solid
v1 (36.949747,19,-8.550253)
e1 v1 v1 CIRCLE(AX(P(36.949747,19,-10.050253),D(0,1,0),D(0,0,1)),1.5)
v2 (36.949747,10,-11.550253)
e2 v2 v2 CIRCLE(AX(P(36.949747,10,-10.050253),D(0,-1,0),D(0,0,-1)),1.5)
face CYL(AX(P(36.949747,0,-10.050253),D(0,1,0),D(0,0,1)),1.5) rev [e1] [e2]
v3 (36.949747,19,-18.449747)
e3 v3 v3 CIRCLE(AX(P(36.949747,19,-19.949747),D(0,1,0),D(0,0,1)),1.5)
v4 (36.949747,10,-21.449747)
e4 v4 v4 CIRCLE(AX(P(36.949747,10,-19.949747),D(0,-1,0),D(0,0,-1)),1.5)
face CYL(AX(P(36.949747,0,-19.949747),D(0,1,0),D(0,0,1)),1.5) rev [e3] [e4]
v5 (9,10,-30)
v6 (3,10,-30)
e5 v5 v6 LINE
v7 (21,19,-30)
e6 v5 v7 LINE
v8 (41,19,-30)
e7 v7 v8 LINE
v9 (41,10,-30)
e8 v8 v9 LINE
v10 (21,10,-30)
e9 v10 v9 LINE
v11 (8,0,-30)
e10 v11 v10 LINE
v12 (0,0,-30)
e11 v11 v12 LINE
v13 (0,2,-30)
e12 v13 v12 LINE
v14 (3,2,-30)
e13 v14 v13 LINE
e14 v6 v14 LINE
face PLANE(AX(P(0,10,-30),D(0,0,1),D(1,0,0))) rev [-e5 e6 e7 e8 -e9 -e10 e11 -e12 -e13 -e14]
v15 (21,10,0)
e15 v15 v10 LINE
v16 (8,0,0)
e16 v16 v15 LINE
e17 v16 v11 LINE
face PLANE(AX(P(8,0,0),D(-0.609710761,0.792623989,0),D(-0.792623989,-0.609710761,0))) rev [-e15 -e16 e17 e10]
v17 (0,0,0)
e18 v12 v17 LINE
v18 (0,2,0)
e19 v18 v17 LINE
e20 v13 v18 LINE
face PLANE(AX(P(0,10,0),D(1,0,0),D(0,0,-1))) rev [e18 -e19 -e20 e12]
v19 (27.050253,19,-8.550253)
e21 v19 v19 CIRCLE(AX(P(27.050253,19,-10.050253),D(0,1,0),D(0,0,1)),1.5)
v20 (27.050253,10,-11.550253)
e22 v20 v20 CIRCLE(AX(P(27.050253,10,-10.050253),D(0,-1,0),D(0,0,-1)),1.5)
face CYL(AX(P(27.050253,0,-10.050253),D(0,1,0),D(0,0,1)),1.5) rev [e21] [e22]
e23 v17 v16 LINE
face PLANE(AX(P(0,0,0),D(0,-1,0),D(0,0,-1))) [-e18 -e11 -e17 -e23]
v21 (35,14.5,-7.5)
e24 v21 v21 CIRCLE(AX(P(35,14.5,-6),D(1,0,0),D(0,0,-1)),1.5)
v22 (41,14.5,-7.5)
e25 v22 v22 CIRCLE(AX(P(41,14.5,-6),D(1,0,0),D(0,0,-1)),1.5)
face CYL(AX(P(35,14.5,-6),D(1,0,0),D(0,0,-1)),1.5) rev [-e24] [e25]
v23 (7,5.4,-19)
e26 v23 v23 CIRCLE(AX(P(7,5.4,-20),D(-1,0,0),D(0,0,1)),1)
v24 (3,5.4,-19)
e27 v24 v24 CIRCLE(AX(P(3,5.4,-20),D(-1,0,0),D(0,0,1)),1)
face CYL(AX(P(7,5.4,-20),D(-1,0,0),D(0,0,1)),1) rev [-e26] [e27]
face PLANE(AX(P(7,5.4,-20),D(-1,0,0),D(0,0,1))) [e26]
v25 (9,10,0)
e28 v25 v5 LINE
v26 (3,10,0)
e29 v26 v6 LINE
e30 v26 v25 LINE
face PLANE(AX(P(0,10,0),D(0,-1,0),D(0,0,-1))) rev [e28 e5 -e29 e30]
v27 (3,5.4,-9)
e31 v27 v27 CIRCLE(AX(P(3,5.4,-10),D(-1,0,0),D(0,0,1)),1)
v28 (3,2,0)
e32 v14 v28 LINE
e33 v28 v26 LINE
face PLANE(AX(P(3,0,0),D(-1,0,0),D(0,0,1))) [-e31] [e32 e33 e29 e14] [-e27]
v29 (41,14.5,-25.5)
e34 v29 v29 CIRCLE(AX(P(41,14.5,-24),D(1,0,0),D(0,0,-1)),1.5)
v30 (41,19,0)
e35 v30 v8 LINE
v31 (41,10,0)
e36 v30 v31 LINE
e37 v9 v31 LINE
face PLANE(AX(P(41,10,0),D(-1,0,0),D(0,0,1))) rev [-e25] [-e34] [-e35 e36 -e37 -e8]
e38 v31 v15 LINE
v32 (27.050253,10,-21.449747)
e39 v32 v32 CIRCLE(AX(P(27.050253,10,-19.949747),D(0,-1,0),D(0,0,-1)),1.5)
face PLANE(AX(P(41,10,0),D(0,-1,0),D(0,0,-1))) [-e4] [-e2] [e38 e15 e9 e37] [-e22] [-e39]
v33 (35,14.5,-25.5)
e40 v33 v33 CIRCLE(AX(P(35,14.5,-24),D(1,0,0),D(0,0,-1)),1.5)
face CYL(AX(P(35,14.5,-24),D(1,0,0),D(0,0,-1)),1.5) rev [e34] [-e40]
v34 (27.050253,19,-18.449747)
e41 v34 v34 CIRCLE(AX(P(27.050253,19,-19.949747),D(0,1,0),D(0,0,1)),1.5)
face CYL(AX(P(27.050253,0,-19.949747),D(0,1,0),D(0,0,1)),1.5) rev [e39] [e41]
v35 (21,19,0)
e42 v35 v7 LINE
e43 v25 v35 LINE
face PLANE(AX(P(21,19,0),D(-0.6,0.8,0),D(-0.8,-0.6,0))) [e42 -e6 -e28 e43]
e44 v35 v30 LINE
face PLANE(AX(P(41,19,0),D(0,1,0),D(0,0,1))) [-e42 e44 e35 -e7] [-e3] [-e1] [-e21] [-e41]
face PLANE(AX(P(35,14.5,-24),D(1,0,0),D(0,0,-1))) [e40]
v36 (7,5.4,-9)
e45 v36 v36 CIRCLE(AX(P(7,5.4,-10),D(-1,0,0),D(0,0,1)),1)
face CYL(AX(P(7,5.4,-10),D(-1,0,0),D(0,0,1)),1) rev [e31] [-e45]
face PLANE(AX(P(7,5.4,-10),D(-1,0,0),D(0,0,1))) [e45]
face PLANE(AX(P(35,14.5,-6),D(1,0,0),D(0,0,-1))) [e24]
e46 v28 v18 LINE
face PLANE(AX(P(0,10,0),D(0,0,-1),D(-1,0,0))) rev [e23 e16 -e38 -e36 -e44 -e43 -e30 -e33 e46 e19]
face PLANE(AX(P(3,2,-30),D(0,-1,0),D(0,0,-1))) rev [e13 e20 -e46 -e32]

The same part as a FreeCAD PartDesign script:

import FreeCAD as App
import Part
import Sketcher

V = App.Vector

doc = App.newDocument("Part")
body = doc.addObject("PartDesign::Body", "Body")

# Sketch on XZ plane
sketch1 = body.newObject("Sketcher::SketchObject", "Sketch")
sketch1.AttachmentSupport = (doc.getObject("XZ_Plane"), [""])
sketch1.MapMode = "FlatFace"
sketch1.addGeometry([
    Part.LineSegment(V(0, -30, 0), V(0, 0, 0)),  # 0
    Part.LineSegment(V(0, 0, 0), V(41, 0, 0)),  # 1
    Part.LineSegment(V(41, 0, 0), V(41, -30, 0)),  # 2
    Part.LineSegment(V(41, -30, 0), V(0, -30, 0)),  # 3
    Part.Circle(V(27.050253, -10.050253, 0), V(0, 0, 1), 1.5),  # 4
    Part.Circle(V(36.949747, -10.050253, 0), V(0, 0, 1), 1.5),  # 5
    Part.Circle(V(27.050253, -19.949747, 0), V(0, 0, 1), 1.5),  # 6
    Part.Circle(V(36.949747, -19.949747, 0), V(0, 0, 1), 1.5),  # 7
], False)
sketch1.addConstraint([
    Sketcher.Constraint("Coincident", 0, 2, 1, 1),
    Sketcher.Constraint("Coincident", 1, 2, 2, 1),
    Sketcher.Constraint("Coincident", 2, 2, 3, 1),
    Sketcher.Constraint("Coincident", 3, 2, 0, 1),
    Sketcher.Constraint("Vertical", 0),
    Sketcher.Constraint("Horizontal", 1),
    Sketcher.Constraint("Vertical", 2),
    Sketcher.Constraint("Horizontal", 3),
    Sketcher.Constraint("Coincident", 0, 2, -1, 1),
    Sketcher.Constraint("Equal", 4, 5),
    Sketcher.Constraint("Equal", 5, 6),
    Sketcher.Constraint("Equal", 6, 7),
    Sketcher.Constraint("Horizontal", 4, 3, 5, 3),
    Sketcher.Constraint("Horizontal", 6, 3, 7, 3),
    Sketcher.Constraint("Vertical", 4, 3, 6, 3),
    Sketcher.Constraint("Vertical", 5, 3, 7, 3),
    Sketcher.Constraint("Diameter", 4, 3.0),
    Sketcher.Constraint("DistanceX", 1, 1, 1, 2, 41.0),
    Sketcher.Constraint("DistanceY", 0, 1, 0, 2, 30.0),
    Sketcher.Constraint("DistanceX", -1, 1, 4, 3, 27.050253),
    Sketcher.Constraint("DistanceY", 4, 3, -1, 1, 10.050253),
    Sketcher.Constraint("DistanceX", -1, 1, 5, 3, 36.949747),
    Sketcher.Constraint("DistanceY", 6, 3, -1, 1, 19.949747),
])
pad1 = body.newObject("PartDesign::Pad", "Pad")
pad1.Profile = sketch1
pad1.Length = 10
pad1.Reversed = True

# Sketch on YZ plane
sketch2 = body.newObject("Sketcher::SketchObject", "Sketch001")
sketch2.AttachmentSupport = (doc.getObject("YZ_Plane"), [""])
sketch2.MapMode = "FlatFace"
sketch2.addGeometry([
    Part.LineSegment(V(10, -30, 0), V(2, -30, 0)),
    Part.LineSegment(V(2, -30, 0), V(2, 0, 0)),
    Part.LineSegment(V(2, 0, 0), V(10, 0, 0)),
    Part.LineSegment(V(10, 0, 0), V(10, -30, 0)),
], False)
sketch2.addConstraint([
    Sketcher.Constraint("Coincident", 0, 2, 1, 1),
    Sketcher.Constraint("Coincident", 1, 2, 2, 1),
    Sketcher.Constraint("Coincident", 2, 2, 3, 1),
    Sketcher.Constraint("Coincident", 3, 2, 0, 1),
    Sketcher.Constraint("Horizontal", 0),
    Sketcher.Constraint("Vertical", 1),
    Sketcher.Constraint("Horizontal", 2),
    Sketcher.Constraint("Vertical", 3),
    Sketcher.Constraint("PointOnObject", 1, 2, -1),
    Sketcher.Constraint("DistanceX", 0, 2, 0, 1, 8.0),
    Sketcher.Constraint("DistanceY", 1, 1, 1, 2, 30.0),
    Sketcher.Constraint("DistanceX", -1, 1, 0, 2, 2.0),
])
pocket1 = body.newObject("PartDesign::Pocket", "Pocket")
pocket1.Profile = sketch2
pocket1.Length = 3
pocket1.Reversed = True

# Sketch on YZ plane
sketch3 = body.newObject("Sketcher::SketchObject", "Sketch002")
sketch3.AttachmentSupport = (doc.getObject("YZ_Plane"), [""])
sketch3.MapMode = "FlatFace"
sketch3.addGeometry([
    Part.Circle(V(5.4, -20, 0), V(0, 0, 1), 1),
    Part.Circle(V(5.4, -10, 0), V(0, 0, 1), 1),
], False)
sketch3.addConstraint([
    Sketcher.Constraint("Equal", 0, 1),
    Sketcher.Constraint("Vertical", 0, 3, 1, 3),
    Sketcher.Constraint("Diameter", 0, 2.0),
    Sketcher.Constraint("DistanceY", 0, 3, -1, 1, 20.0),
    Sketcher.Constraint("DistanceY", 1, 3, -1, 1, 10.0),
    Sketcher.Constraint("DistanceX", -1, 1, 0, 3, 5.4),
])
pocket2 = body.newObject("PartDesign::Pocket", "Pocket001")
pocket2.Profile = sketch3
pocket2.Length = 7
pocket2.Reversed = True

# Sketch on XY plane
sketch4 = body.newObject("Sketcher::SketchObject", "Sketch003")
sketch4.AttachmentSupport = (doc.getObject("XY_Plane"), [""])
sketch4.MapMode = "FlatFace"
sketch4.AttachmentOffset = App.Placement(V(0, 0, -30), App.Rotation())
sketch4.addGeometry([
    Part.LineSegment(V(41, 19, 0), V(41, 10, 0)),
    Part.LineSegment(V(41, 10, 0), V(9, 10, 0)),
    Part.LineSegment(V(9, 10, 0), V(21, 19, 0)),
    Part.LineSegment(V(21, 19, 0), V(41, 19, 0)),
], False)
sketch4.addConstraint([
    Sketcher.Constraint("Coincident", 0, 2, 1, 1),
    Sketcher.Constraint("Coincident", 1, 2, 2, 1),
    Sketcher.Constraint("Coincident", 2, 2, 3, 1),
    Sketcher.Constraint("Coincident", 3, 2, 0, 1),
    Sketcher.Constraint("Vertical", 0),
    Sketcher.Constraint("Horizontal", 1),
    Sketcher.Constraint("Horizontal", 3),
    Sketcher.Constraint("DistanceX", 1, 2, 1, 1, 32.0),
    Sketcher.Constraint("DistanceX", 3, 1, 3, 2, 20.0),
    Sketcher.Constraint("DistanceY", 0, 2, 0, 1, 9.0),
    Sketcher.Constraint("DistanceX", -1, 1, 0, 2, 41.0),
    Sketcher.Constraint("DistanceY", -1, 1, 0, 2, 10.0),
])
pad2 = body.newObject("PartDesign::Pad", "Pad001")
pad2.Profile = sketch4
pad2.Length = 30

# Sketch on XZ plane
sketch5 = body.newObject("Sketcher::SketchObject", "Sketch004")
sketch5.AttachmentSupport = (doc.getObject("XZ_Plane"), [""])
sketch5.MapMode = "FlatFace"
sketch5.addGeometry([
    Part.LineSegment(V(21, 0, 0), V(21, -30, 0)),
    Part.LineSegment(V(21, -30, 0), V(41, -30, 0)),
    Part.LineSegment(V(41, -30, 0), V(41, 0, 0)),
    Part.LineSegment(V(41, 0, 0), V(21, 0, 0)),
], False)
sketch5.addConstraint([
    Sketcher.Constraint("Coincident", 0, 2, 1, 1),
    Sketcher.Constraint("Coincident", 1, 2, 2, 1),
    Sketcher.Constraint("Coincident", 2, 2, 3, 1),
    Sketcher.Constraint("Coincident", 3, 2, 0, 1),
    Sketcher.Constraint("Vertical", 0),
    Sketcher.Constraint("Horizontal", 1),
    Sketcher.Constraint("Vertical", 2),
    Sketcher.Constraint("Horizontal", 3),
    Sketcher.Constraint("PointOnObject", 2, 2, -1),
    Sketcher.Constraint("DistanceX", 1, 1, 1, 2, 20.0),
    Sketcher.Constraint("DistanceY", 0, 2, 0, 1, 30.0),
    Sketcher.Constraint("DistanceX", -1, 1, 0, 2, 21.0),
])
pocket3 = body.newObject("PartDesign::Pocket", "Pocket002")
pocket3.Profile = sketch5
pocket3.Length = 10

# Sketch on YZ plane
sketch6 = body.newObject("Sketcher::SketchObject", "Sketch005")
sketch6.AttachmentSupport = (doc.getObject("YZ_Plane"), [""])
sketch6.MapMode = "FlatFace"
sketch6.AttachmentOffset = App.Placement(V(0, 0, 41), App.Rotation())
sketch6.addGeometry([
    Part.Circle(V(14.5, -6, 0), V(0, 0, 1), 1.5),
    Part.Circle(V(14.5, -24, 0), V(0, 0, 1), 1.5),
], False)
sketch6.addConstraint([
    Sketcher.Constraint("Equal", 0, 1),
    Sketcher.Constraint("Vertical", 0, 3, 1, 3),
    Sketcher.Constraint("Diameter", 0, 3.0),
    Sketcher.Constraint("DistanceY", 0, 3, -1, 1, 6.0),
    Sketcher.Constraint("DistanceY", 1, 3, -1, 1, 24.0),
    Sketcher.Constraint("DistanceX", -1, 1, 0, 3, 14.5),
])
pocket4 = body.newObject("PartDesign::Pocket", "Pocket003")
pocket4.Profile = sketch6
pocket4.Length = 6

# Sketch on XZ plane
sketch7 = body.newObject("Sketcher::SketchObject", "Sketch006")
sketch7.AttachmentSupport = (doc.getObject("XZ_Plane"), [""])
sketch7.MapMode = "FlatFace"
sketch7.AttachmentOffset = App.Placement(V(0, 0, -19), App.Rotation())
sketch7.addGeometry([
    Part.Circle(V(36.949747, -19.949747, 0), V(0, 0, 1), 1.5),
    Part.Circle(V(36.949747, -10.050253, 0), V(0, 0, 1), 1.5),
    Part.Circle(V(27.050253, -10.050253, 0), V(0, 0, 1), 1.5),
    Part.Circle(V(27.050253, -19.949747, 0), V(0, 0, 1), 1.5),
], False)
sketch7.addConstraint([
    Sketcher.Constraint("Equal", 0, 1),
    Sketcher.Constraint("Equal", 1, 2),
    Sketcher.Constraint("Equal", 2, 3),
    Sketcher.Constraint("Horizontal", 1, 3, 2, 3),
    Sketcher.Constraint("Horizontal", 0, 3, 3, 3),
    Sketcher.Constraint("Vertical", 0, 3, 1, 3),
    Sketcher.Constraint("Vertical", 2, 3, 3, 3),
    Sketcher.Constraint("Diameter", 0, 3.0),
    Sketcher.Constraint("DistanceX", -1, 1, 0, 3, 36.949747),
    Sketcher.Constraint("DistanceY", 0, 3, -1, 1, 19.949747),
    Sketcher.Constraint("DistanceY", 1, 3, -1, 1, 10.050253),
    Sketcher.Constraint("DistanceX", -1, 1, 2, 3, 27.050253),
])
pocket5 = body.newObject("PartDesign::Pocket", "Pocket004")
pocket5.Profile = sketch7
pocket5.Type = "ThroughAll"
pocket5.Reversed = True

# Sketch on XY plane
sketch8 = body.newObject("Sketcher::SketchObject", "Sketch007")
sketch8.AttachmentSupport = (doc.getObject("XY_Plane"), [""])
sketch8.MapMode = "FlatFace"
sketch8.AttachmentOffset = App.Placement(V(0, 0, -30), App.Rotation())
sketch8.addGeometry([
    Part.LineSegment(V(21, 10, 0), V(21, 0, 0)),
    Part.LineSegment(V(21, 0, 0), V(8, 0, 0)),
    Part.LineSegment(V(8, 0, 0), V(21, 10, 0)),
], False)
sketch8.addConstraint([
    Sketcher.Constraint("Coincident", 0, 2, 1, 1),
    Sketcher.Constraint("Coincident", 1, 2, 2, 1),
    Sketcher.Constraint("Coincident", 2, 2, 0, 1),
    Sketcher.Constraint("Vertical", 0),
    Sketcher.Constraint("Horizontal", 1),
    Sketcher.Constraint("PointOnObject", 0, 2, -1),
    Sketcher.Constraint("DistanceX", 1, 2, 1, 1, 13.0),
    Sketcher.Constraint("DistanceY", 0, 2, 0, 1, 10.0),
    Sketcher.Constraint("DistanceX", -1, 1, 0, 2, 21.0),
])
pocket6 = body.newObject("PartDesign::Pocket", "Pocket005")
pocket6.Profile = sketch8
pocket6.Type = "ThroughAll"
pocket6.Reversed = True

doc.recompute()
